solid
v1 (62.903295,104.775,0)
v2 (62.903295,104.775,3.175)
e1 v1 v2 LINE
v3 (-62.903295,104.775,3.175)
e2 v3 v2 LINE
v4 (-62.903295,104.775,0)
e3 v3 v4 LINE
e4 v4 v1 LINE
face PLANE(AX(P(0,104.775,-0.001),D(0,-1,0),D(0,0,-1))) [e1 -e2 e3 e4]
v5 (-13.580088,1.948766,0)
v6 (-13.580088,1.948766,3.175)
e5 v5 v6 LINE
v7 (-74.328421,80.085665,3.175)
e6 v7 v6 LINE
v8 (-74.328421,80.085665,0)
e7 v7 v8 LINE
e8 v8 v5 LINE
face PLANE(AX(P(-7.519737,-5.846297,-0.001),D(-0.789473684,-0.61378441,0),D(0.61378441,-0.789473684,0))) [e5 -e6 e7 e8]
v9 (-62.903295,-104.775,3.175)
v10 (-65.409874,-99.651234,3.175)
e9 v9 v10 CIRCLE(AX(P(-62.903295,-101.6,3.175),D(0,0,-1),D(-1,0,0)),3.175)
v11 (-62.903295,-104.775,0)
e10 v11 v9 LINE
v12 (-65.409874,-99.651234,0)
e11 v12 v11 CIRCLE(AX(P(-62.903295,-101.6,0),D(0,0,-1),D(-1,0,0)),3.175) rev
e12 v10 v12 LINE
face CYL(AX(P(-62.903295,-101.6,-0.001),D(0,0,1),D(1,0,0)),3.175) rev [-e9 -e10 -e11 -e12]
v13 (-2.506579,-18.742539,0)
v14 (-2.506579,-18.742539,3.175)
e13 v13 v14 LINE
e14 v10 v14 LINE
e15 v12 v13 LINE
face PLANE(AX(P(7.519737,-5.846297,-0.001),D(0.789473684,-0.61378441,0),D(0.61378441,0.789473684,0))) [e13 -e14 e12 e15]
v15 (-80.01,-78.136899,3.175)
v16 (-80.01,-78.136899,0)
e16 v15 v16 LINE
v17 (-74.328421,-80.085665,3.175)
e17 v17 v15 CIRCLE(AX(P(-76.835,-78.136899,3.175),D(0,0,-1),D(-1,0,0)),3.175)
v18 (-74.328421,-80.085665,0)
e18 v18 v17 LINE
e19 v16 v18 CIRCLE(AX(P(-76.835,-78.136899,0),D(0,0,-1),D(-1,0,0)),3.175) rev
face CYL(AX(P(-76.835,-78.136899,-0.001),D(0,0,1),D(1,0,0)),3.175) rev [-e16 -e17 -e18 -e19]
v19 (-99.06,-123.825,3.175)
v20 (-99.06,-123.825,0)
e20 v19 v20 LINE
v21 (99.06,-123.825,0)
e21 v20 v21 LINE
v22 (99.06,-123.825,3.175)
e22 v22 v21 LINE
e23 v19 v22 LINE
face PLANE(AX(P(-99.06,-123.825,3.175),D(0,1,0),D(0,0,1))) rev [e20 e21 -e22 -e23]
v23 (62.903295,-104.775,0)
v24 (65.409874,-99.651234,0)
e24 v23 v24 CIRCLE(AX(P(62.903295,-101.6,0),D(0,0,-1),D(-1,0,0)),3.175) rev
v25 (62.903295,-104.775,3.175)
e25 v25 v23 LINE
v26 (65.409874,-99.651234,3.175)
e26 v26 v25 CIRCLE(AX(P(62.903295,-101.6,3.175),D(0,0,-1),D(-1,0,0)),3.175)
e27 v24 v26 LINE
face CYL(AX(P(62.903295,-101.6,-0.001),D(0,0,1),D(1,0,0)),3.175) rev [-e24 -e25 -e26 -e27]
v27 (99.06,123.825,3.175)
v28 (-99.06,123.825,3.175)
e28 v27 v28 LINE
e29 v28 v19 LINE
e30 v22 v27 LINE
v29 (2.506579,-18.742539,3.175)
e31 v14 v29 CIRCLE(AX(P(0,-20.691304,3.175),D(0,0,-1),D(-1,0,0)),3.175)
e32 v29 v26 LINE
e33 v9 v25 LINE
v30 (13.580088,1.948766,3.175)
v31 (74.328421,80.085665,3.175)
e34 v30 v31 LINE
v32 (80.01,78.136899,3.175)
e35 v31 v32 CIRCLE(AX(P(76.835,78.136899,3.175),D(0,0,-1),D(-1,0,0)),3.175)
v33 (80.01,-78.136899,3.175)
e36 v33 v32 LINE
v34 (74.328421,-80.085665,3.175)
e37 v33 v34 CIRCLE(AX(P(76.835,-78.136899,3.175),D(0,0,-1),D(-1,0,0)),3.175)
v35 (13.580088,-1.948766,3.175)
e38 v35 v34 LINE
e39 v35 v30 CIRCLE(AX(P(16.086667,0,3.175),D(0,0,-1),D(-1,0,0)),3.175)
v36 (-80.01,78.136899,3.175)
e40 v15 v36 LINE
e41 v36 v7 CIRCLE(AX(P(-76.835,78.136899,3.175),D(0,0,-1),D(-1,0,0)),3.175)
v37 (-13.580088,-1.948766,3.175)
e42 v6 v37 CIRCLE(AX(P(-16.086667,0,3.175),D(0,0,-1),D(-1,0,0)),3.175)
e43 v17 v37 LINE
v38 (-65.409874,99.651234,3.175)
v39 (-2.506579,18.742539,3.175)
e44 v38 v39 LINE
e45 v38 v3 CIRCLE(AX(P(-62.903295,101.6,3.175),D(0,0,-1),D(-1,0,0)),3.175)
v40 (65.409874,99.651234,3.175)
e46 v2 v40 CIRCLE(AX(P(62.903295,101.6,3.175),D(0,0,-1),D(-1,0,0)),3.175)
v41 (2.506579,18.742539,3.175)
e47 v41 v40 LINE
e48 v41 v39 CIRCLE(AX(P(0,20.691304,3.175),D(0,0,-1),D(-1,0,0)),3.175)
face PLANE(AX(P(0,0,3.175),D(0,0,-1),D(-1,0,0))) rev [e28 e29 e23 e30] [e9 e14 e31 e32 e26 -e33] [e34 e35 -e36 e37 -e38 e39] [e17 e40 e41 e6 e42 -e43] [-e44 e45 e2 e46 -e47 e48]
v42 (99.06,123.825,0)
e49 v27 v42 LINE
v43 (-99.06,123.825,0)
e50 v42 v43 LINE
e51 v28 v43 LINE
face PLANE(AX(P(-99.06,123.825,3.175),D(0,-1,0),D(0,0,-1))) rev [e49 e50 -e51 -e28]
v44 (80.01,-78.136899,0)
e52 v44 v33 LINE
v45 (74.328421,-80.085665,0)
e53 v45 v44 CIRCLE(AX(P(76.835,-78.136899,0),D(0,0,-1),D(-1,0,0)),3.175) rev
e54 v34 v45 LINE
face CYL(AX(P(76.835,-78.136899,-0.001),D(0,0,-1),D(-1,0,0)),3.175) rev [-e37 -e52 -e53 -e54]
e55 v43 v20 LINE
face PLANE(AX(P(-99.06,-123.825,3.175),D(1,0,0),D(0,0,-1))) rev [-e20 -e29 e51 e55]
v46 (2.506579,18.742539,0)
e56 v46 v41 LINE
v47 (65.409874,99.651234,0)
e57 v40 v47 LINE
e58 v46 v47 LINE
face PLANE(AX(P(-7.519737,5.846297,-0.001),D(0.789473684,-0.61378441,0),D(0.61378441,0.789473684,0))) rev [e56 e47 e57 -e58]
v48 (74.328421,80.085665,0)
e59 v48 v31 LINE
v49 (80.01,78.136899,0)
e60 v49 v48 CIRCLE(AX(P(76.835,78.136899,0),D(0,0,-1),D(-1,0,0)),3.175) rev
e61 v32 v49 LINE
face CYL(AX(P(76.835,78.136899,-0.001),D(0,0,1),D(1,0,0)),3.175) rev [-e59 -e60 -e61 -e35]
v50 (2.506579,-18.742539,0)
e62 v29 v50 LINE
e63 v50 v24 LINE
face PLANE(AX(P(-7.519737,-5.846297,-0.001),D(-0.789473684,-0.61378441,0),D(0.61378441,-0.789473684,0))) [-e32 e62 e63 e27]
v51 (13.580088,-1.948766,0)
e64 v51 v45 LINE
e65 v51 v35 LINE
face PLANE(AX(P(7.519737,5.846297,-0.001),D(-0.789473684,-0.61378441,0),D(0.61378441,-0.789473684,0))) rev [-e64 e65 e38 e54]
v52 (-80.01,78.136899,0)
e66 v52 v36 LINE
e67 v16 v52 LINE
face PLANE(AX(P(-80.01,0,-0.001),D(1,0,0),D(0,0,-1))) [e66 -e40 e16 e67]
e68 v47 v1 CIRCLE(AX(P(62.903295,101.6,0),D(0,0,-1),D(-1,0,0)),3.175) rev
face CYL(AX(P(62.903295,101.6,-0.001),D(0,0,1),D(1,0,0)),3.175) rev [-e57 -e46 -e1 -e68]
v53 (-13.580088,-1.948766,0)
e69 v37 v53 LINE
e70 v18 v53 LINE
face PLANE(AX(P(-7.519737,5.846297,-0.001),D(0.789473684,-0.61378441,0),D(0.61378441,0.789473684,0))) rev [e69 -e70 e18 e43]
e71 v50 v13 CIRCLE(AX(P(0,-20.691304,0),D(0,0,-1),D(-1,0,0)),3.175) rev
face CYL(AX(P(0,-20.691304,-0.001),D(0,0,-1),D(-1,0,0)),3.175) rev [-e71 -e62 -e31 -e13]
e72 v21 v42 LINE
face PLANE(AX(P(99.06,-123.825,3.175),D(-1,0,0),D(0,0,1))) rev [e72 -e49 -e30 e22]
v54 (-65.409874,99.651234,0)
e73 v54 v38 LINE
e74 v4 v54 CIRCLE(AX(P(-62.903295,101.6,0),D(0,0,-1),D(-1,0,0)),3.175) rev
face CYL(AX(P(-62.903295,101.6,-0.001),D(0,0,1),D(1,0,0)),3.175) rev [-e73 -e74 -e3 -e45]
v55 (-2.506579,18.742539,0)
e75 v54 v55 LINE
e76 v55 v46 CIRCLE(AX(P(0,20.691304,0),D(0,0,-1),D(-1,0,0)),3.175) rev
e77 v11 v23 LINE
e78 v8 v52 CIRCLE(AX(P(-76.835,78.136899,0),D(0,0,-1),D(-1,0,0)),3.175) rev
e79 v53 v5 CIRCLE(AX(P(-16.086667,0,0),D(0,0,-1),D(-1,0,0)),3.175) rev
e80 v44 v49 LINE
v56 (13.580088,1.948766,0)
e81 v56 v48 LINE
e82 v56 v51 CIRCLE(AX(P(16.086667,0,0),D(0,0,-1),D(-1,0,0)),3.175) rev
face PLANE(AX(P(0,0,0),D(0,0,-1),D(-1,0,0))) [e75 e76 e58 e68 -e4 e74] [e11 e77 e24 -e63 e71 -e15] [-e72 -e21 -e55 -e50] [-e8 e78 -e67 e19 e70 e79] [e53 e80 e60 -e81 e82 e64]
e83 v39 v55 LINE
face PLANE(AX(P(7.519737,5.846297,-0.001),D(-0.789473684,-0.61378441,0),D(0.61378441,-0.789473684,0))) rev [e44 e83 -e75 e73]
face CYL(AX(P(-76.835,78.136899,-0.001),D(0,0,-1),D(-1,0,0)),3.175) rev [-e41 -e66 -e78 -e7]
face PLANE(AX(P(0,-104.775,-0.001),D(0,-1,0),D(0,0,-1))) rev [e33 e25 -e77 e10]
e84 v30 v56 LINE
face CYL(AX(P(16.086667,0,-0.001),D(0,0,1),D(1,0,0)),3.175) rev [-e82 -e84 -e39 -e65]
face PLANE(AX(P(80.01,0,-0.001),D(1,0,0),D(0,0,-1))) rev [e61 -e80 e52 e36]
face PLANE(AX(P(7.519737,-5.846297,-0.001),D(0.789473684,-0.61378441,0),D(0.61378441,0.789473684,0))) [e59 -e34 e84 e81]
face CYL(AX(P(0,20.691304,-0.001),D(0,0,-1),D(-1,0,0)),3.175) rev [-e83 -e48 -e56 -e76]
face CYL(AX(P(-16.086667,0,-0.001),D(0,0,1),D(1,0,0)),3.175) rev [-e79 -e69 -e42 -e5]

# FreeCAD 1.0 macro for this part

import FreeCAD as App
import Part
import Sketcher
from FreeCAD import Vector
Q = App.Units.Quantity


def edges_at(feature, points):
    """Names of the edges that pass closest to the given points."""
    edges = feature.Shape.Edges
    near = lambda p: min(range(len(edges)), key=lambda i: edges[i].distToShape(Part.Vertex(*p))[0])
    return sorted({f"Edge{near(p) + 1}" for p in points})

doc = App.newDocument("Part")
body = doc.addObject("PartDesign::Body", "Body")

sketch1 = doc.addObject("Sketcher::SketchObject", "Sketch")
body.addObject(sketch1)
sketch1.AttachmentSupport = (doc.XY_Plane, [""])
sketch1.MapMode = "FlatFace"
sketch1.addGeometry([
    Part.LineSegment(Vector(-99.06, 123.825, 0), Vector(-99.06, -123.825, 0)),
    Part.LineSegment(Vector(-99.06, -123.825, 0), Vector(99.06, -123.825, 0)),
    Part.LineSegment(Vector(99.06, -123.825, 0), Vector(99.06, 123.825, 0)),
    Part.LineSegment(Vector(99.06, 123.825, 0), Vector(-99.06, 123.825, 0)),
], False)
sketch1.addConstraint([
    Sketcher.Constraint("Coincident", 0, 2, 1, 1),
    Sketcher.Constraint("Coincident", 1, 2, 2, 1),
    Sketcher.Constraint("Coincident", 2, 2, 3, 1),
    Sketcher.Constraint("Coincident", 3, 2, 0, 1),
    Sketcher.Constraint("Vertical", 0),
    Sketcher.Constraint("Horizontal", 1),
    Sketcher.Constraint("Vertical", 2),
    Sketcher.Constraint("Horizontal", 3),
    Sketcher.Constraint("Symmetric", 0, 2, 2, 2, -1, 1),
    Sketcher.Constraint("DistanceX", 1, 1, 1, 2, Q("7.8 in")),
    Sketcher.Constraint("DistanceY", 0, 2, 0, 1, Q("9.75 in")),
])
pad1 = doc.addObject("PartDesign::Pad", "Pad")
body.addObject(pad1)
pad1.Profile = sketch1
pad1.Length = Q("0.125 in")

sketch2 = doc.addObject("Sketcher::SketchObject", "Sketch001")
body.addObject(sketch2)
sketch2.AttachmentSupport = (doc.XY_Plane, [""])
sketch2.MapMode = "FlatFace"
sketch2.AttachmentOffset = App.Placement(Vector(0, 0, 0.125 * 25.4), App.Rotation())
sketch2.addGeometry([
    Part.LineSegment(Vector(-80.01, -87.393535, 0), Vector(-12.065, 0, 0)),
    Part.LineSegment(Vector(-12.065, 0, 0), Vector(-80.01, 87.393535, 0)),
    Part.LineSegment(Vector(-80.01, 87.393535, 0), Vector(-80.01, -87.393535, 0)),
], False)
sketch2.addConstraint([
    Sketcher.Constraint("Coincident", 0, 2, 1, 1),
    Sketcher.Constraint("Coincident", 1, 2, 2, 1),
    Sketcher.Constraint("Coincident", 2, 2, 0, 1),
    Sketcher.Constraint("Vertical", 2),
    Sketcher.Constraint("PointOnObject", 0, 2, -1),
    Sketcher.Constraint("Equal", 0, 1),
    Sketcher.Constraint("DistanceX", 1, 2, -1, 1, Q("3.15 in")),
    Sketcher.Constraint("DistanceX", 0, 2, -1, 1, Q("0.475 in")),
    Sketcher.Constraint("DistanceY", 2, 2, 2, 1, 174.787071),
])
pocket1 = doc.addObject("PartDesign::Pocket", "Pocket")
body.addObject(pocket1)
pocket1.Profile = sketch2
pocket1.Type = "UpToFirst"

sketch3 = doc.addObject("Sketcher::SketchObject", "Sketch002")
body.addObject(sketch3)
sketch3.AttachmentSupport = (doc.XY_Plane, [""])
sketch3.MapMode = "FlatFace"
sketch3.AttachmentOffset = App.Placement(Vector(0, 0, 0.125 * 25.4), App.Rotation())
sketch3.addGeometry([
    Part.LineSegment(Vector(69.393398, 104.775, 0), Vector(-69.393398, 104.775, 0)),
    Part.LineSegment(Vector(-69.393398, 104.775, 0), Vector(0, 15.518478, 0)),
    Part.LineSegment(Vector(0, 15.518478, 0), Vector(69.393398, 104.775, 0)),
], False)
sketch3.addConstraint([
    Sketcher.Constraint("Coincident", 0, 2, 1, 1),
    Sketcher.Constraint("Coincident", 1, 2, 2, 1),
    Sketcher.Constraint("Coincident", 2, 2, 0, 1),
    Sketcher.Constraint("Horizontal", 0),
    Sketcher.Constraint("PointOnObject", 1, 2, -2),
    Sketcher.Constraint("Equal", 1, 2),
    Sketcher.Constraint("DistanceY", -1, 1, 0, 2, Q("4.125 in")),
    Sketcher.Constraint("Distance", 1, 113.058261),
    Sketcher.Constraint("DistanceX", 0, 2, 0, 1, 138.786796),
])
pocket2 = doc.addObject("PartDesign::Pocket", "Pocket001")
body.addObject(pocket2)
pocket2.Profile = sketch3
pocket2.Type = "UpToFirst"

sketch4 = doc.addObject("Sketcher::SketchObject", "Sketch003")
body.addObject(sketch4)
sketch4.AttachmentSupport = (doc.XY_Plane, [""])
sketch4.MapMode = "FlatFace"
sketch4.AttachmentOffset = App.Placement(Vector(0, 0, 0.125 * 25.4), App.Rotation())
sketch4.addGeometry([
    Part.LineSegment(Vector(80.01, 87.393535, 0), Vector(12.065, 0, 0)),
    Part.LineSegment(Vector(12.065, 0, 0), Vector(80.01, -87.393535, 0)),
    Part.LineSegment(Vector(80.01, -87.393535, 0), Vector(80.01, 87.393535, 0)),
], False)
sketch4.addConstraint([
    Sketcher.Constraint("Coincident", 0, 2, 1, 1),
    Sketcher.Constraint("Coincident", 1, 2, 2, 1),
    Sketcher.Constraint("Coincident", 2, 2, 0, 1),
    Sketcher.Constraint("Vertical", 2),
    Sketcher.Constraint("PointOnObject", 0, 2, -1),
    Sketcher.Constraint("Equal", 0, 1),
    Sketcher.Constraint("DistanceX", -1, 1, 1, 2, Q("3.15 in")),
    Sketcher.Constraint("DistanceX", -1, 1, 0, 2, Q("0.475 in")),
    Sketcher.Constraint("DistanceY", 2, 1, 2, 2, 174.787071),
])
pocket3 = doc.addObject("PartDesign::Pocket", "Pocket002")
body.addObject(pocket3)
pocket3.Profile = sketch4
pocket3.Type = "UpToFirst"

sketch5 = doc.addObject("Sketcher::SketchObject", "Sketch004")
body.addObject(sketch5)
sketch5.AttachmentSupport = (doc.XY_Plane, [""])
sketch5.MapMode = "FlatFace"
sketch5.AttachmentOffset = App.Placement(Vector(0, 0, 0.125 * 25.4), App.Rotation())
sketch5.addGeometry([
    Part.LineSegment(Vector(69.393398, -104.775, 0), Vector(0, -15.518478, 0)),
    Part.LineSegment(Vector(0, -15.518478, 0), Vector(-69.393398, -104.775, 0)),
    Part.LineSegment(Vector(-69.393398, -104.775, 0), Vector(69.393398, -104.775, 0)),
], False)
sketch5.addConstraint([
    Sketcher.Constraint("Coincident", 0, 2, 1, 1),
    Sketcher.Constraint("Coincident", 1, 2, 2, 1),
    Sketcher.Constraint("Coincident", 2, 2, 0, 1),
    Sketcher.Constraint("Horizontal", 2),
    Sketcher.Constraint("PointOnObject", 0, 2, -2),
    Sketcher.Constraint("Equal", 0, 1),
    Sketcher.Constraint("DistanceY", 1, 2, -1, 1, Q("4.125 in")),
    Sketcher.Constraint("Distance", 0, 113.058261),
    Sketcher.Constraint("DistanceX", 2, 1, 2, 2, 138.786796),
])
pocket4 = doc.addObject("PartDesign::Pocket", "Pocket003")
body.addObject(pocket4)
pocket4.Profile = sketch5
pocket4.Type = "UpToFirst"
doc.recompute()

fillet = doc.addObject("PartDesign::Fillet", "Fillet")
body.addObject(fillet)
fillet.Base = (pocket4, edges_at(pocket4, [
    (12.065, 0, 1.587),
    (80.01, 87.394, 1.587),
    (80.01, -87.394, 1.587),
    (0, 15.518, 1.587),
    (-69.393, 104.775, 1.587),
    (69.393, 104.775, 1.587),
    (-69.393, -104.775, 1.587),
    (0, -15.518, 1.587),
    (69.393, -104.775, 1.587),
    (-80.01, -87.394, 1.587),
    (-80.01, 87.394, 1.587),
    (-12.065, 0, 1.587),
]))
fillet.Radius = Q("0.125 in")

doc.recompute()
